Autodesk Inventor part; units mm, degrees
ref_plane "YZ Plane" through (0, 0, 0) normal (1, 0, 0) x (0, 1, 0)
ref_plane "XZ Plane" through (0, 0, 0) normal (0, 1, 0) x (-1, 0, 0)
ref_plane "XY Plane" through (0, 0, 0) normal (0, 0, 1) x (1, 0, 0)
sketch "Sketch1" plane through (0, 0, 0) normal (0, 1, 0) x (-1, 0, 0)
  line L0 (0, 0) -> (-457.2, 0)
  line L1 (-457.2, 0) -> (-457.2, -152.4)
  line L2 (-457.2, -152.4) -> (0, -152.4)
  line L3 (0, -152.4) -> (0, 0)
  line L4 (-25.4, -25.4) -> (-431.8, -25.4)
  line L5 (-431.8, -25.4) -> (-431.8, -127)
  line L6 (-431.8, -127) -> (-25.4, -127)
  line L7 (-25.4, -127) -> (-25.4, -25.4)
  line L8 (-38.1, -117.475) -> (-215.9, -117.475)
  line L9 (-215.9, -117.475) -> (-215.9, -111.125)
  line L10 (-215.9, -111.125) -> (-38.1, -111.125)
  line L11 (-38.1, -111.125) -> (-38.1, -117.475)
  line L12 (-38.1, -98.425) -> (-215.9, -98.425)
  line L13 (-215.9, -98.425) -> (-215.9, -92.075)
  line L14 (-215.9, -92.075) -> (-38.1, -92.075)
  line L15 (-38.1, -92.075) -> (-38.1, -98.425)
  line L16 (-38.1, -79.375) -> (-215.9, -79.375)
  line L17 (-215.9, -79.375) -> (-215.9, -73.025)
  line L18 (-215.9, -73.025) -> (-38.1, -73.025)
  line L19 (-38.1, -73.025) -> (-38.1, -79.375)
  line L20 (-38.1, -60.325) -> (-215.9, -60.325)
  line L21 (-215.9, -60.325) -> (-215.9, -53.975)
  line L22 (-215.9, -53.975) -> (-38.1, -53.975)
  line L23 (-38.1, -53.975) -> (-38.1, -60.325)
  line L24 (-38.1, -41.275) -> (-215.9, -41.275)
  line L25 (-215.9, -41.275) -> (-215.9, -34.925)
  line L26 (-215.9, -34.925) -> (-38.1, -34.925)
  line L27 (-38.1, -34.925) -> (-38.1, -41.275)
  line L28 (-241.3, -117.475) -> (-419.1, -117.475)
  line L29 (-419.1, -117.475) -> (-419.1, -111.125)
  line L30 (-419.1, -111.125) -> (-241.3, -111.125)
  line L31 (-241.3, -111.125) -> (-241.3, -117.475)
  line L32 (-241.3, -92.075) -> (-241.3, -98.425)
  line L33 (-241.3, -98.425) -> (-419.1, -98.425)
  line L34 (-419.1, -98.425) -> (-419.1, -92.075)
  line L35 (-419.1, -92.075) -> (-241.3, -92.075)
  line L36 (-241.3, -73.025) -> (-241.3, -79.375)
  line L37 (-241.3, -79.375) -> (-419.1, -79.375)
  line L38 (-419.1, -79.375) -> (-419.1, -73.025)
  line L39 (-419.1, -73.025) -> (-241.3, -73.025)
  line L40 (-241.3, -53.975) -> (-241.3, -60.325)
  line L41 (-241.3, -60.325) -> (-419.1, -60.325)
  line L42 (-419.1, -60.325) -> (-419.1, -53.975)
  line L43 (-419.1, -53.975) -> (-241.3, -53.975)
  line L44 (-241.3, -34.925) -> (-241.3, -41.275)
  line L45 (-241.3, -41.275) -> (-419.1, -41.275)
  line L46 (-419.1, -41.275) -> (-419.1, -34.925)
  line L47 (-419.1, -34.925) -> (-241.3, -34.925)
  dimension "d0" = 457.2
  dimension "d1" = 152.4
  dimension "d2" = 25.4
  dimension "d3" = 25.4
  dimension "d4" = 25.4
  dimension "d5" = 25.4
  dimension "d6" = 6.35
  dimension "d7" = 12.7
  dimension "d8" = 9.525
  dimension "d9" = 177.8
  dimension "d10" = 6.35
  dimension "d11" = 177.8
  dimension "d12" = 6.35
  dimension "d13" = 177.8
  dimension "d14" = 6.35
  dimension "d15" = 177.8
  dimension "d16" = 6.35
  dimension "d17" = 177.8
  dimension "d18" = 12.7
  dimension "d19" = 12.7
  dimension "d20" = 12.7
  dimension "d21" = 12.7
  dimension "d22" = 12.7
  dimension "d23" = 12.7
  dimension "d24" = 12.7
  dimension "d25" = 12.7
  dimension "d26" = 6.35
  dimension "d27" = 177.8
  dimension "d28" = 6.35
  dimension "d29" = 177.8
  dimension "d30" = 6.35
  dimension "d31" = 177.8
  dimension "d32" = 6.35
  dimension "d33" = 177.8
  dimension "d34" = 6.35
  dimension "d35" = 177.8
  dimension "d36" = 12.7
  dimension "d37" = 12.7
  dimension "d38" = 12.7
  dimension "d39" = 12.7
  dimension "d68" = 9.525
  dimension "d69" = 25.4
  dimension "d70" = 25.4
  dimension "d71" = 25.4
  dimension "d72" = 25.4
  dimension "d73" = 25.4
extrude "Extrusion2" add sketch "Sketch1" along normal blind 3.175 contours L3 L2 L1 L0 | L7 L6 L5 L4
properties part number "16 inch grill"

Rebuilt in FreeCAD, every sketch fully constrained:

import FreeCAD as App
import Part
import Sketcher

V = App.Vector
Q = App.Units.Quantity

doc = App.newDocument("Part")
body = doc.addObject("PartDesign::Body", "Body")

# Sketch on XZ plane
sketch1 = body.newObject("Sketcher::SketchObject", "Sketch")
sketch1.AttachmentSupport = (doc.getObject("XZ_Plane"), [""])
sketch1.MapMode = "FlatFace"
sketch1.addGeometry(Part.LineSegment(V(0, -152.4, 0), V(0, 0, 0)), False)
sketch1.addGeometry(Part.LineSegment(V(0, 0, 0), V(457.2, 0, 0)), False)
sketch1.addGeometry(Part.LineSegment(V(457.2, 0, 0), V(457.2, -152.4, 0)), False)
sketch1.addGeometry(Part.LineSegment(V(457.2, -152.4, 0), V(0, -152.4, 0)), False)
sketch1.addGeometry(Part.LineSegment(V(38.1, -34.925, 0), V(38.1, -41.275, 0)), False)
sketch1.addGeometry(Part.LineSegment(V(38.1, -41.275, 0), V(215.9, -41.275, 0)), False)
sketch1.addGeometry(Part.LineSegment(V(215.9, -41.275, 0), V(215.9, -34.925, 0)), False)
sketch1.addGeometry(Part.LineSegment(V(215.9, -34.925, 0), V(38.1, -34.925, 0)), False)
sketch1.addGeometry(Part.LineSegment(V(241.3, -111.125, 0), V(241.3, -117.475, 0)), False)
sketch1.addGeometry(Part.LineSegment(V(241.3, -117.475, 0), V(419.1, -117.475, 0)), False)
sketch1.addGeometry(Part.LineSegment(V(419.1, -117.475, 0), V(419.1, -111.125, 0)), False)
sketch1.addGeometry(Part.LineSegment(V(419.1, -111.125, 0), V(241.3, -111.125, 0)), False)
sketch1.addGeometry(Part.LineSegment(V(419.1, -92.075, 0), V(241.3, -92.075, 0)), False)
sketch1.addGeometry(Part.LineSegment(V(241.3, -92.075, 0), V(241.3, -98.425, 0)), False)
sketch1.addGeometry(Part.LineSegment(V(241.3, -98.425, 0), V(419.1, -98.425, 0)), False)
sketch1.addGeometry(Part.LineSegment(V(419.1, -98.425, 0), V(419.1, -92.075, 0)), False)
sketch1.addGeometry(Part.LineSegment(V(38.1, -111.125, 0), V(38.1, -117.475, 0)), False)
sketch1.addGeometry(Part.LineSegment(V(38.1, -117.475, 0), V(215.9, -117.475, 0)), False)
sketch1.addGeometry(Part.LineSegment(V(215.9, -117.475, 0), V(215.9, -111.125, 0)), False)
sketch1.addGeometry(Part.LineSegment(V(215.9, -111.125, 0), V(38.1, -111.125, 0)), False)
sketch1.addGeometry(Part.LineSegment(V(38.1, -92.075, 0), V(38.1, -98.425, 0)), False)
sketch1.addGeometry(Part.LineSegment(V(38.1, -98.425, 0), V(215.9, -98.425, 0)), False)
sketch1.addGeometry(Part.LineSegment(V(215.9, -98.425, 0), V(215.9, -92.075, 0)), False)
sketch1.addGeometry(Part.LineSegment(V(215.9, -92.075, 0), V(38.1, -92.075, 0)), False)
sketch1.addGeometry(Part.LineSegment(V(419.1, -73.025, 0), V(241.3, -73.025, 0)), False)
sketch1.addGeometry(Part.LineSegment(V(241.3, -73.025, 0), V(241.3, -79.375, 0)), False)
sketch1.addGeometry(Part.LineSegment(V(241.3, -79.375, 0), V(419.1, -79.375, 0)), False)
sketch1.addGeometry(Part.LineSegment(V(419.1, -79.375, 0), V(419.1, -73.025, 0)), False)
sketch1.addGeometry(Part.LineSegment(V(419.1, -53.975, 0), V(241.3, -53.975, 0)), False)
sketch1.addGeometry(Part.LineSegment(V(241.3, -53.975, 0), V(241.3, -60.325, 0)), False)
sketch1.addGeometry(Part.LineSegment(V(241.3, -60.325, 0), V(419.1, -60.325, 0)), False)
sketch1.addGeometry(Part.LineSegment(V(419.1, -60.325, 0), V(419.1, -53.975, 0)), False)
sketch1.addGeometry(Part.LineSegment(V(419.1, -34.925, 0), V(241.3, -34.925, 0)), False)
sketch1.addGeometry(Part.LineSegment(V(241.3, -34.925, 0), V(241.3, -41.275, 0)), False)
sketch1.addGeometry(Part.LineSegment(V(241.3, -41.275, 0), V(419.1, -41.275, 0)), False)
sketch1.addGeometry(Part.LineSegment(V(419.1, -41.275, 0), V(419.1, -34.925, 0)), False)
sketch1.addGeometry(Part.LineSegment(V(38.1, -73.025, 0), V(38.1, -79.375, 0)), False)
sketch1.addGeometry(Part.LineSegment(V(38.1, -79.375, 0), V(215.9, -79.375, 0)), False)
sketch1.addGeometry(Part.LineSegment(V(215.9, -79.375, 0), V(215.9, -73.025, 0)), False)
sketch1.addGeometry(Part.LineSegment(V(215.9, -73.025, 0), V(38.1, -73.025, 0)), False)
sketch1.addGeometry(Part.LineSegment(V(38.1, -53.975, 0), V(38.1, -60.325, 0)), False)
sketch1.addGeometry(Part.LineSegment(V(38.1, -60.325, 0), V(215.9, -60.325, 0)), False)
sketch1.addGeometry(Part.LineSegment(V(215.9, -60.325, 0), V(215.9, -53.975, 0)), False)
sketch1.addGeometry(Part.LineSegment(V(215.9, -53.975, 0), V(38.1, -53.975, 0)), False)
sketch1.addConstraint(Sketcher.Constraint("Coincident", 0, 2, 1, 1))
sketch1.addConstraint(Sketcher.Constraint("Coincident", 1, 2, 2, 1))
sketch1.addConstraint(Sketcher.Constraint("Coincident", 2, 2, 3, 1))
sketch1.addConstraint(Sketcher.Constraint("Coincident", 3, 2, 0, 1))
sketch1.addConstraint(Sketcher.Constraint("Coincident", 4, 2, 5, 1))
sketch1.addConstraint(Sketcher.Constraint("Coincident", 5, 2, 6, 1))
sketch1.addConstraint(Sketcher.Constraint("Coincident", 6, 2, 7, 1))
sketch1.addConstraint(Sketcher.Constraint("Coincident", 7, 2, 4, 1))
sketch1.addConstraint(Sketcher.Constraint("Coincident", 8, 2, 9, 1))
sketch1.addConstraint(Sketcher.Constraint("Coincident", 9, 2, 10, 1))
sketch1.addConstraint(Sketcher.Constraint("Coincident", 10, 2, 11, 1))
sketch1.addConstraint(Sketcher.Constraint("Coincident", 11, 2, 8, 1))
sketch1.addConstraint(Sketcher.Constraint("Coincident", 12, 2, 13, 1))
sketch1.addConstraint(Sketcher.Constraint("Coincident", 13, 2, 14, 1))
sketch1.addConstraint(Sketcher.Constraint("Coincident", 14, 2, 15, 1))
sketch1.addConstraint(Sketcher.Constraint("Coincident", 15, 2, 12, 1))
sketch1.addConstraint(Sketcher.Constraint("Coincident", 16, 2, 17, 1))
sketch1.addConstraint(Sketcher.Constraint("Coincident", 17, 2, 18, 1))
sketch1.addConstraint(Sketcher.Constraint("Coincident", 18, 2, 19, 1))
sketch1.addConstraint(Sketcher.Constraint("Coincident", 19, 2, 16, 1))
sketch1.addConstraint(Sketcher.Constraint("Coincident", 20, 2, 21, 1))
sketch1.addConstraint(Sketcher.Constraint("Coincident", 21, 2, 22, 1))
sketch1.addConstraint(Sketcher.Constraint("Coincident", 22, 2, 23, 1))
sketch1.addConstraint(Sketcher.Constraint("Coincident", 23, 2, 20, 1))
sketch1.addConstraint(Sketcher.Constraint("Coincident", 24, 2, 25, 1))
sketch1.addConstraint(Sketcher.Constraint("Coincident", 25, 2, 26, 1))
sketch1.addConstraint(Sketcher.Constraint("Coincident", 26, 2, 27, 1))
sketch1.addConstraint(Sketcher.Constraint("Coincident", 27, 2, 24, 1))
sketch1.addConstraint(Sketcher.Constraint("Coincident", 28, 2, 29, 1))
sketch1.addConstraint(Sketcher.Constraint("Coincident", 29, 2, 30, 1))
sketch1.addConstraint(Sketcher.Constraint("Coincident", 30, 2, 31, 1))
sketch1.addConstraint(Sketcher.Constraint("Coincident", 31, 2, 28, 1))
sketch1.addConstraint(Sketcher.Constraint("Coincident", 32, 2, 33, 1))
sketch1.addConstraint(Sketcher.Constraint("Coincident", 33, 2, 34, 1))
sketch1.addConstraint(Sketcher.Constraint("Coincident", 34, 2, 35, 1))
sketch1.addConstraint(Sketcher.Constraint("Coincident", 35, 2, 32, 1))
sketch1.addConstraint(Sketcher.Constraint("Coincident", 36, 2, 37, 1))
sketch1.addConstraint(Sketcher.Constraint("Coincident", 37, 2, 38, 1))
sketch1.addConstraint(Sketcher.Constraint("Coincident", 38, 2, 39, 1))
sketch1.addConstraint(Sketcher.Constraint("Coincident", 39, 2, 36, 1))
sketch1.addConstraint(Sketcher.Constraint("Coincident", 40, 2, 41, 1))
sketch1.addConstraint(Sketcher.Constraint("Coincident", 41, 2, 42, 1))
sketch1.addConstraint(Sketcher.Constraint("Coincident", 42, 2, 43, 1))
sketch1.addConstraint(Sketcher.Constraint("Coincident", 43, 2, 40, 1))
sketch1.addConstraint(Sketcher.Constraint("Vertical", 0))
sketch1.addConstraint(Sketcher.Constraint("Horizontal", 1))
sketch1.addConstraint(Sketcher.Constraint("Vertical", 2))
sketch1.addConstraint(Sketcher.Constraint("Horizontal", 3))
sketch1.addConstraint(Sketcher.Constraint("Vertical", 4))
sketch1.addConstraint(Sketcher.Constraint("Horizontal", 5))
sketch1.addConstraint(Sketcher.Constraint("Vertical", 6))
sketch1.addConstraint(Sketcher.Constraint("Horizontal", 7))
sketch1.addConstraint(Sketcher.Constraint("Vertical", 8))
sketch1.addConstraint(Sketcher.Constraint("Horizontal", 9))
sketch1.addConstraint(Sketcher.Constraint("Vertical", 10))
sketch1.addConstraint(Sketcher.Constraint("Horizontal", 11))
sketch1.addConstraint(Sketcher.Constraint("Horizontal", 12))
sketch1.addConstraint(Sketcher.Constraint("Vertical", 13))
sketch1.addConstraint(Sketcher.Constraint("Horizontal", 14))
sketch1.addConstraint(Sketcher.Constraint("Vertical", 15))
sketch1.addConstraint(Sketcher.Constraint("Vertical", 16))
sketch1.addConstraint(Sketcher.Constraint("Horizontal", 17))
sketch1.addConstraint(Sketcher.Constraint("Vertical", 18))
sketch1.addConstraint(Sketcher.Constraint("Horizontal", 19))
sketch1.addConstraint(Sketcher.Constraint("Vertical", 20))
sketch1.addConstraint(Sketcher.Constraint("Horizontal", 21))
sketch1.addConstraint(Sketcher.Constraint("Vertical", 22))
sketch1.addConstraint(Sketcher.Constraint("Horizontal", 23))
sketch1.addConstraint(Sketcher.Constraint("Horizontal", 24))
sketch1.addConstraint(Sketcher.Constraint("Vertical", 25))
sketch1.addConstraint(Sketcher.Constraint("Horizontal", 26))
sketch1.addConstraint(Sketcher.Constraint("Vertical", 27))
sketch1.addConstraint(Sketcher.Constraint("Horizontal", 28))
sketch1.addConstraint(Sketcher.Constraint("Vertical", 29))
sketch1.addConstraint(Sketcher.Constraint("Horizontal", 30))
sketch1.addConstraint(Sketcher.Constraint("Vertical", 31))
sketch1.addConstraint(Sketcher.Constraint("Horizontal", 32))
sketch1.addConstraint(Sketcher.Constraint("Vertical", 33))
sketch1.addConstraint(Sketcher.Constraint("Horizontal", 34))
sketch1.addConstraint(Sketcher.Constraint("Vertical", 35))
sketch1.addConstraint(Sketcher.Constraint("Vertical", 36))
sketch1.addConstraint(Sketcher.Constraint("Horizontal", 37))
sketch1.addConstraint(Sketcher.Constraint("Vertical", 38))
sketch1.addConstraint(Sketcher.Constraint("Horizontal", 39))
sketch1.addConstraint(Sketcher.Constraint("Vertical", 40))
sketch1.addConstraint(Sketcher.Constraint("Horizontal", 41))
sketch1.addConstraint(Sketcher.Constraint("Vertical", 42))
sketch1.addConstraint(Sketcher.Constraint("Horizontal", 43))
sketch1.addConstraint(Sketcher.Constraint("Coincident", 0, 2, -1, 1))
sketch1.addConstraint(Sketcher.Constraint("Horizontal", 9, 2, 16, 2))
sketch1.addConstraint(Sketcher.Constraint("Horizontal", 11, 2, 18, 2))
sketch1.addConstraint(Sketcher.Constraint("Horizontal", 14, 2, 20, 2))
sketch1.addConstraint(Sketcher.Constraint("Horizontal", 15, 2, 22, 2))
sketch1.addConstraint(Sketcher.Constraint("Horizontal", 7, 2, 32, 2))
sketch1.addConstraint(Sketcher.Constraint("Horizontal", 5, 2, 33, 2))
sketch1.addConstraint(Sketcher.Constraint("Horizontal", 26, 2, 36, 2))
sketch1.addConstraint(Sketcher.Constraint("Horizontal", 27, 2, 38, 2))
sketch1.addConstraint(Sketcher.Constraint("Horizontal", 30, 2, 40, 2))
sketch1.addConstraint(Sketcher.Constraint("Horizontal", 31, 2, 42, 2))
sketch1.addConstraint(Sketcher.Constraint("Vertical", 11, 2, 12, 2))
sketch1.addConstraint(Sketcher.Constraint("Vertical", 10, 2, 14, 2))
sketch1.addConstraint(Sketcher.Constraint("Vertical", 7, 2, 16, 2))
sketch1.addConstraint(Sketcher.Constraint("Vertical", 6, 2, 17, 2))
sketch1.addConstraint(Sketcher.Constraint("Vertical", 19, 2, 20, 2))
sketch1.addConstraint(Sketcher.Constraint("Vertical", 18, 2, 21, 2))
sketch1.addConstraint(Sketcher.Constraint("Vertical", 13, 2, 24, 2))
sketch1.addConstraint(Sketcher.Constraint("Vertical", 15, 2, 26, 2))
sketch1.addConstraint(Sketcher.Constraint("Vertical", 25, 2, 28, 2))
sketch1.addConstraint(Sketcher.Constraint("Vertical", 27, 2, 30, 2))
sketch1.addConstraint(Sketcher.Constraint("Vertical", 29, 2, 32, 2))
sketch1.addConstraint(Sketcher.Constraint("Vertical", 31, 2, 34, 2))
sketch1.addConstraint(Sketcher.Constraint("Vertical", 23, 2, 36, 2))
sketch1.addConstraint(Sketcher.Constraint("Vertical", 22, 2, 37, 2))
sketch1.addConstraint(Sketcher.Constraint("Vertical", 39, 2, 40, 2))
sketch1.addConstraint(Sketcher.Constraint("Vertical", 38, 2, 41, 2))
sketch1.addConstraint(Sketcher.Constraint("Equal", 7, 9))
sketch1.addConstraint(Sketcher.Constraint("Equal", 6, 8))
sketch1.addConstraint(Sketcher.Constraint("Equal", 10, 13))
sketch1.addConstraint(Sketcher.Constraint("Equal", 22, 25))
sketch1.addConstraint(Sketcher.Constraint("Equal", 27, 29))
sketch1.addConstraint(Sketcher.Constraint("DistanceX", 1, 1, 1, 2, Q("18 in")))
sketch1.addConstraint(Sketcher.Constraint("DistanceX", 5, 1, 5, 2, Q("7 in")))
sketch1.addConstraint(Sketcher.Constraint("DistanceY", 0, 1, 0, 2, Q("6 in")))
sketch1.addConstraint(Sketcher.Constraint("DistanceX", 5, 2, 8, 2, Q("1 in")))
sketch1.addConstraint(Sketcher.Constraint("DistanceY", 8, 2, 12, 2, Q("1 in")))
sketch1.addConstraint(Sketcher.Constraint("DistanceY", 13, 2, 24, 2, Q("1 in")))
sketch1.addConstraint(Sketcher.Constraint("DistanceY", 25, 2, 28, 2, Q("1 in")))
sketch1.addConstraint(Sketcher.Constraint("DistanceY", 29, 2, 32, 2, Q("1 in")))
sketch1.addConstraint(Sketcher.Constraint("DistanceY", 4, 2, 4, 1, Q("0.25 in")))
sketch1.addConstraint(Sketcher.Constraint("DistanceX", -1, 1, 4, 2, Q("1.5 in")))
sketch1.addConstraint(Sketcher.Constraint("DistanceY", 4, 2, -1, 1, Q("1.625 in")))
pad1 = body.newObject("PartDesign::Pad", "Pad")
pad1.Profile = sketch1
pad1.Length = Q("0.125 in")
pad1.Reversed = True

doc.recompute()
